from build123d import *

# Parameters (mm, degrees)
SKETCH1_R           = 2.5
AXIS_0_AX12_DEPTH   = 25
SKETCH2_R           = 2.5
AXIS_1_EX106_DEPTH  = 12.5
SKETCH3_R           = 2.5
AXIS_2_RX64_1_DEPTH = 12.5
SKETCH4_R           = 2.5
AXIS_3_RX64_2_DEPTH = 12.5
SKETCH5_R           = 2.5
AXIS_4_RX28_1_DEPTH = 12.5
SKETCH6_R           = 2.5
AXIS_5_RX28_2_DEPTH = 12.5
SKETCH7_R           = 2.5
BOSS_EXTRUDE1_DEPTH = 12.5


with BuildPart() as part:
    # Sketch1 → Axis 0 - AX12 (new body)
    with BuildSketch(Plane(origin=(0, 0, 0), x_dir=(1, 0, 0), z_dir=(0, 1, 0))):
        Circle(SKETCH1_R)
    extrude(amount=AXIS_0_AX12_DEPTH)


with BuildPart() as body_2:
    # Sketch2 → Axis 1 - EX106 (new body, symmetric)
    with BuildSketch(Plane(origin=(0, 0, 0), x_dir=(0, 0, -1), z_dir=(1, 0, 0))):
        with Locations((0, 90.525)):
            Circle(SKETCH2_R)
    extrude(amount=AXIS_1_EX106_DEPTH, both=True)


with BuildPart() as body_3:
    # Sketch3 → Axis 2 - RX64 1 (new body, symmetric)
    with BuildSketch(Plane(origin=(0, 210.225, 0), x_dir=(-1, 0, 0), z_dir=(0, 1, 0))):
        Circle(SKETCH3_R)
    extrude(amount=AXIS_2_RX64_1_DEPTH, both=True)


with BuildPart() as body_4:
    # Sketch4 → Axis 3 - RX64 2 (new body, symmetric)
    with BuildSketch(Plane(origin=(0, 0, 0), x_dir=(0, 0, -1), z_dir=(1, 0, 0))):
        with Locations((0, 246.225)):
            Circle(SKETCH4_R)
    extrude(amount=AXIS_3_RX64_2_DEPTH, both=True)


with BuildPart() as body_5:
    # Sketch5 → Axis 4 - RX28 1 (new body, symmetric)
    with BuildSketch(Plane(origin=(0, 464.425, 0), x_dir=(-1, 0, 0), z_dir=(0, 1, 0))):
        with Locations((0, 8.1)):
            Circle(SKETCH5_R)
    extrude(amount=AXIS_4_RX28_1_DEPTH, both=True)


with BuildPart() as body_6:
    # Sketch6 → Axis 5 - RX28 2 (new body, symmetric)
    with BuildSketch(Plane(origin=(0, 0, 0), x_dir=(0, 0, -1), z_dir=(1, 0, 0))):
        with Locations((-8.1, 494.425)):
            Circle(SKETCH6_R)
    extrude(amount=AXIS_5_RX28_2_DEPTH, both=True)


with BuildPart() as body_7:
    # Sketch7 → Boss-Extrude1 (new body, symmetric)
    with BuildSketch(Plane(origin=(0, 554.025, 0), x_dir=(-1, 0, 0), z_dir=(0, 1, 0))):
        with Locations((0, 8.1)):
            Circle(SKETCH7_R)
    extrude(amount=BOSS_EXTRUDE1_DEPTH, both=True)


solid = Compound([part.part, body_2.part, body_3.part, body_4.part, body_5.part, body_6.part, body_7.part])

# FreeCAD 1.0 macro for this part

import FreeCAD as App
import Part
import Sketcher

doc = App.newDocument("Part")
body = doc.addObject("PartDesign::Body", "Body")

sketch1 = body.newObject("Sketcher::SketchObject", "Sketch")
sketch1.AttachmentSupport = (doc.getObject("XZ_Plane"), [""])
sketch1.MapMode = "FlatFace"
sketch1.addGeometry(Part.Circle(App.Vector(0, 0, 0), App.Vector(0, 0, 1), 2.5), False)
sketch1.addConstraint(Sketcher.Constraint("Coincident", 0, 3, -1, 1))
sketch1.addConstraint(Sketcher.Constraint("Diameter", 0, 5.0))
pad1 = body.newObject("PartDesign::Pad", "Pad")
pad1.Profile = sketch1
pad1.Length = 25
pad1.Reversed = True
body2 = doc.addObject("PartDesign::Body", "Body001")

sketch2 = body2.newObject("Sketcher::SketchObject", "Sketch001")
sketch2.AttachmentSupport = (doc.getObject("YZ_Plane001"), [""])
sketch2.MapMode = "FlatFace"
sketch2.addGeometry(Part.Circle(App.Vector(90.525, 0, 0), App.Vector(0, 0, 1), 2.5), False)
sketch2.addConstraint(Sketcher.Constraint("PointOnObject", 0, 3, -1))
sketch2.addConstraint(Sketcher.Constraint("Diameter", 0, 5.0))
sketch2.addConstraint(Sketcher.Constraint("DistanceX", -1, 1, 0, 3, 90.525))
pad2 = body2.newObject("PartDesign::Pad", "Pad001")
pad2.Profile = sketch2
pad2.Length = 25
pad2.Midplane = True
body3 = doc.addObject("PartDesign::Body", "Body002")

sketch3 = body3.newObject("Sketcher::SketchObject", "Sketch002")
sketch3.AttachmentSupport = (doc.getObject("XZ_Plane002"), [""])
sketch3.MapMode = "FlatFace"
sketch3.AttachmentOffset = App.Placement(App.Vector(0, 0, -210.225), App.Rotation())
sketch3.addGeometry(Part.Circle(App.Vector(0, 0, 0), App.Vector(0, 0, 1), 2.5), False)
sketch3.addConstraint(Sketcher.Constraint("Coincident", 0, 3, -1, 1))
sketch3.addConstraint(Sketcher.Constraint("Diameter", 0, 5.0))
pad3 = body3.newObject("PartDesign::Pad", "Pad002")
pad3.Profile = sketch3
pad3.Length = 25
pad3.Midplane = True
body4 = doc.addObject("PartDesign::Body", "Body003")

sketch4 = body4.newObject("Sketcher::SketchObject", "Sketch003")
sketch4.AttachmentSupport = (doc.getObject("YZ_Plane003"), [""])
sketch4.MapMode = "FlatFace"
sketch4.addGeometry(Part.Circle(App.Vector(246.225, 0, 0), App.Vector(0, 0, 1), 2.5), False)
sketch4.addConstraint(Sketcher.Constraint("PointOnObject", 0, 3, -1))
sketch4.addConstraint(Sketcher.Constraint("Diameter", 0, 5.0))
sketch4.addConstraint(Sketcher.Constraint("DistanceX", -1, 1, 0, 3, 246.225))
pad4 = body4.newObject("PartDesign::Pad", "Pad003")
pad4.Profile = sketch4
pad4.Length = 25
pad4.Midplane = True
body5 = doc.addObject("PartDesign::Body", "Body004")

sketch5 = body5.newObject("Sketcher::SketchObject", "Sketch004")
sketch5.AttachmentSupport = (doc.getObject("XZ_Plane004"), [""])
sketch5.MapMode = "FlatFace"
sketch5.AttachmentOffset = App.Placement(App.Vector(0, 0, -464.425), App.Rotation())
sketch5.addGeometry(Part.Circle(App.Vector(0, 8.1, 0), App.Vector(0, 0, 1), 2.5), False)
sketch5.addConstraint(Sketcher.Constraint("PointOnObject", 0, 3, -2))
sketch5.addConstraint(Sketcher.Constraint("Diameter", 0, 5.0))
sketch5.addConstraint(Sketcher.Constraint("DistanceY", -1, 1, 0, 3, 8.1))
pad5 = body5.newObject("PartDesign::Pad", "Pad004")
pad5.Profile = sketch5
pad5.Length = 25
pad5.Midplane = True
body6 = doc.addObject("PartDesign::Body", "Body005")

sketch6 = body6.newObject("Sketcher::SketchObject", "Sketch005")
sketch6.AttachmentSupport = (doc.getObject("YZ_Plane005"), [""])
sketch6.MapMode = "FlatFace"
sketch6.addGeometry(Part.Circle(App.Vector(494.425, 8.1, 0), App.Vector(0, 0, 1), 2.5), False)
sketch6.addConstraint(Sketcher.Constraint("Diameter", 0, 5.0))
sketch6.addConstraint(Sketcher.Constraint("DistanceY", -1, 1, 0, 3, 8.1))
sketch6.addConstraint(Sketcher.Constraint("DistanceX", -1, 1, 0, 3, 494.425))
pad6 = body6.newObject("PartDesign::Pad", "Pad005")
pad6.Profile = sketch6
pad6.Length = 25
pad6.Midplane = True
body7 = doc.addObject("PartDesign::Body", "Body006")

sketch7 = body7.newObject("Sketcher::SketchObject", "Sketch006")
sketch7.AttachmentSupport = (doc.getObject("XZ_Plane006"), [""])
sketch7.MapMode = "FlatFace"
sketch7.AttachmentOffset = App.Placement(App.Vector(0, 0, -554.025), App.Rotation())
sketch7.addGeometry(Part.Circle(App.Vector(0, 8.1, 0), App.Vector(0, 0, 1), 2.5), False)
sketch7.addConstraint(Sketcher.Constraint("PointOnObject", 0, 3, -2))
sketch7.addConstraint(Sketcher.Constraint("Diameter", 0, 5.0))
sketch7.addConstraint(Sketcher.Constraint("DistanceY", -1, 1, 0, 3, 8.1))
pad7 = body7.newObject("PartDesign::Pad", "Pad006")
pad7.Profile = sketch7
pad7.Length = 25
pad7.Midplane = True

doc.recompute()
